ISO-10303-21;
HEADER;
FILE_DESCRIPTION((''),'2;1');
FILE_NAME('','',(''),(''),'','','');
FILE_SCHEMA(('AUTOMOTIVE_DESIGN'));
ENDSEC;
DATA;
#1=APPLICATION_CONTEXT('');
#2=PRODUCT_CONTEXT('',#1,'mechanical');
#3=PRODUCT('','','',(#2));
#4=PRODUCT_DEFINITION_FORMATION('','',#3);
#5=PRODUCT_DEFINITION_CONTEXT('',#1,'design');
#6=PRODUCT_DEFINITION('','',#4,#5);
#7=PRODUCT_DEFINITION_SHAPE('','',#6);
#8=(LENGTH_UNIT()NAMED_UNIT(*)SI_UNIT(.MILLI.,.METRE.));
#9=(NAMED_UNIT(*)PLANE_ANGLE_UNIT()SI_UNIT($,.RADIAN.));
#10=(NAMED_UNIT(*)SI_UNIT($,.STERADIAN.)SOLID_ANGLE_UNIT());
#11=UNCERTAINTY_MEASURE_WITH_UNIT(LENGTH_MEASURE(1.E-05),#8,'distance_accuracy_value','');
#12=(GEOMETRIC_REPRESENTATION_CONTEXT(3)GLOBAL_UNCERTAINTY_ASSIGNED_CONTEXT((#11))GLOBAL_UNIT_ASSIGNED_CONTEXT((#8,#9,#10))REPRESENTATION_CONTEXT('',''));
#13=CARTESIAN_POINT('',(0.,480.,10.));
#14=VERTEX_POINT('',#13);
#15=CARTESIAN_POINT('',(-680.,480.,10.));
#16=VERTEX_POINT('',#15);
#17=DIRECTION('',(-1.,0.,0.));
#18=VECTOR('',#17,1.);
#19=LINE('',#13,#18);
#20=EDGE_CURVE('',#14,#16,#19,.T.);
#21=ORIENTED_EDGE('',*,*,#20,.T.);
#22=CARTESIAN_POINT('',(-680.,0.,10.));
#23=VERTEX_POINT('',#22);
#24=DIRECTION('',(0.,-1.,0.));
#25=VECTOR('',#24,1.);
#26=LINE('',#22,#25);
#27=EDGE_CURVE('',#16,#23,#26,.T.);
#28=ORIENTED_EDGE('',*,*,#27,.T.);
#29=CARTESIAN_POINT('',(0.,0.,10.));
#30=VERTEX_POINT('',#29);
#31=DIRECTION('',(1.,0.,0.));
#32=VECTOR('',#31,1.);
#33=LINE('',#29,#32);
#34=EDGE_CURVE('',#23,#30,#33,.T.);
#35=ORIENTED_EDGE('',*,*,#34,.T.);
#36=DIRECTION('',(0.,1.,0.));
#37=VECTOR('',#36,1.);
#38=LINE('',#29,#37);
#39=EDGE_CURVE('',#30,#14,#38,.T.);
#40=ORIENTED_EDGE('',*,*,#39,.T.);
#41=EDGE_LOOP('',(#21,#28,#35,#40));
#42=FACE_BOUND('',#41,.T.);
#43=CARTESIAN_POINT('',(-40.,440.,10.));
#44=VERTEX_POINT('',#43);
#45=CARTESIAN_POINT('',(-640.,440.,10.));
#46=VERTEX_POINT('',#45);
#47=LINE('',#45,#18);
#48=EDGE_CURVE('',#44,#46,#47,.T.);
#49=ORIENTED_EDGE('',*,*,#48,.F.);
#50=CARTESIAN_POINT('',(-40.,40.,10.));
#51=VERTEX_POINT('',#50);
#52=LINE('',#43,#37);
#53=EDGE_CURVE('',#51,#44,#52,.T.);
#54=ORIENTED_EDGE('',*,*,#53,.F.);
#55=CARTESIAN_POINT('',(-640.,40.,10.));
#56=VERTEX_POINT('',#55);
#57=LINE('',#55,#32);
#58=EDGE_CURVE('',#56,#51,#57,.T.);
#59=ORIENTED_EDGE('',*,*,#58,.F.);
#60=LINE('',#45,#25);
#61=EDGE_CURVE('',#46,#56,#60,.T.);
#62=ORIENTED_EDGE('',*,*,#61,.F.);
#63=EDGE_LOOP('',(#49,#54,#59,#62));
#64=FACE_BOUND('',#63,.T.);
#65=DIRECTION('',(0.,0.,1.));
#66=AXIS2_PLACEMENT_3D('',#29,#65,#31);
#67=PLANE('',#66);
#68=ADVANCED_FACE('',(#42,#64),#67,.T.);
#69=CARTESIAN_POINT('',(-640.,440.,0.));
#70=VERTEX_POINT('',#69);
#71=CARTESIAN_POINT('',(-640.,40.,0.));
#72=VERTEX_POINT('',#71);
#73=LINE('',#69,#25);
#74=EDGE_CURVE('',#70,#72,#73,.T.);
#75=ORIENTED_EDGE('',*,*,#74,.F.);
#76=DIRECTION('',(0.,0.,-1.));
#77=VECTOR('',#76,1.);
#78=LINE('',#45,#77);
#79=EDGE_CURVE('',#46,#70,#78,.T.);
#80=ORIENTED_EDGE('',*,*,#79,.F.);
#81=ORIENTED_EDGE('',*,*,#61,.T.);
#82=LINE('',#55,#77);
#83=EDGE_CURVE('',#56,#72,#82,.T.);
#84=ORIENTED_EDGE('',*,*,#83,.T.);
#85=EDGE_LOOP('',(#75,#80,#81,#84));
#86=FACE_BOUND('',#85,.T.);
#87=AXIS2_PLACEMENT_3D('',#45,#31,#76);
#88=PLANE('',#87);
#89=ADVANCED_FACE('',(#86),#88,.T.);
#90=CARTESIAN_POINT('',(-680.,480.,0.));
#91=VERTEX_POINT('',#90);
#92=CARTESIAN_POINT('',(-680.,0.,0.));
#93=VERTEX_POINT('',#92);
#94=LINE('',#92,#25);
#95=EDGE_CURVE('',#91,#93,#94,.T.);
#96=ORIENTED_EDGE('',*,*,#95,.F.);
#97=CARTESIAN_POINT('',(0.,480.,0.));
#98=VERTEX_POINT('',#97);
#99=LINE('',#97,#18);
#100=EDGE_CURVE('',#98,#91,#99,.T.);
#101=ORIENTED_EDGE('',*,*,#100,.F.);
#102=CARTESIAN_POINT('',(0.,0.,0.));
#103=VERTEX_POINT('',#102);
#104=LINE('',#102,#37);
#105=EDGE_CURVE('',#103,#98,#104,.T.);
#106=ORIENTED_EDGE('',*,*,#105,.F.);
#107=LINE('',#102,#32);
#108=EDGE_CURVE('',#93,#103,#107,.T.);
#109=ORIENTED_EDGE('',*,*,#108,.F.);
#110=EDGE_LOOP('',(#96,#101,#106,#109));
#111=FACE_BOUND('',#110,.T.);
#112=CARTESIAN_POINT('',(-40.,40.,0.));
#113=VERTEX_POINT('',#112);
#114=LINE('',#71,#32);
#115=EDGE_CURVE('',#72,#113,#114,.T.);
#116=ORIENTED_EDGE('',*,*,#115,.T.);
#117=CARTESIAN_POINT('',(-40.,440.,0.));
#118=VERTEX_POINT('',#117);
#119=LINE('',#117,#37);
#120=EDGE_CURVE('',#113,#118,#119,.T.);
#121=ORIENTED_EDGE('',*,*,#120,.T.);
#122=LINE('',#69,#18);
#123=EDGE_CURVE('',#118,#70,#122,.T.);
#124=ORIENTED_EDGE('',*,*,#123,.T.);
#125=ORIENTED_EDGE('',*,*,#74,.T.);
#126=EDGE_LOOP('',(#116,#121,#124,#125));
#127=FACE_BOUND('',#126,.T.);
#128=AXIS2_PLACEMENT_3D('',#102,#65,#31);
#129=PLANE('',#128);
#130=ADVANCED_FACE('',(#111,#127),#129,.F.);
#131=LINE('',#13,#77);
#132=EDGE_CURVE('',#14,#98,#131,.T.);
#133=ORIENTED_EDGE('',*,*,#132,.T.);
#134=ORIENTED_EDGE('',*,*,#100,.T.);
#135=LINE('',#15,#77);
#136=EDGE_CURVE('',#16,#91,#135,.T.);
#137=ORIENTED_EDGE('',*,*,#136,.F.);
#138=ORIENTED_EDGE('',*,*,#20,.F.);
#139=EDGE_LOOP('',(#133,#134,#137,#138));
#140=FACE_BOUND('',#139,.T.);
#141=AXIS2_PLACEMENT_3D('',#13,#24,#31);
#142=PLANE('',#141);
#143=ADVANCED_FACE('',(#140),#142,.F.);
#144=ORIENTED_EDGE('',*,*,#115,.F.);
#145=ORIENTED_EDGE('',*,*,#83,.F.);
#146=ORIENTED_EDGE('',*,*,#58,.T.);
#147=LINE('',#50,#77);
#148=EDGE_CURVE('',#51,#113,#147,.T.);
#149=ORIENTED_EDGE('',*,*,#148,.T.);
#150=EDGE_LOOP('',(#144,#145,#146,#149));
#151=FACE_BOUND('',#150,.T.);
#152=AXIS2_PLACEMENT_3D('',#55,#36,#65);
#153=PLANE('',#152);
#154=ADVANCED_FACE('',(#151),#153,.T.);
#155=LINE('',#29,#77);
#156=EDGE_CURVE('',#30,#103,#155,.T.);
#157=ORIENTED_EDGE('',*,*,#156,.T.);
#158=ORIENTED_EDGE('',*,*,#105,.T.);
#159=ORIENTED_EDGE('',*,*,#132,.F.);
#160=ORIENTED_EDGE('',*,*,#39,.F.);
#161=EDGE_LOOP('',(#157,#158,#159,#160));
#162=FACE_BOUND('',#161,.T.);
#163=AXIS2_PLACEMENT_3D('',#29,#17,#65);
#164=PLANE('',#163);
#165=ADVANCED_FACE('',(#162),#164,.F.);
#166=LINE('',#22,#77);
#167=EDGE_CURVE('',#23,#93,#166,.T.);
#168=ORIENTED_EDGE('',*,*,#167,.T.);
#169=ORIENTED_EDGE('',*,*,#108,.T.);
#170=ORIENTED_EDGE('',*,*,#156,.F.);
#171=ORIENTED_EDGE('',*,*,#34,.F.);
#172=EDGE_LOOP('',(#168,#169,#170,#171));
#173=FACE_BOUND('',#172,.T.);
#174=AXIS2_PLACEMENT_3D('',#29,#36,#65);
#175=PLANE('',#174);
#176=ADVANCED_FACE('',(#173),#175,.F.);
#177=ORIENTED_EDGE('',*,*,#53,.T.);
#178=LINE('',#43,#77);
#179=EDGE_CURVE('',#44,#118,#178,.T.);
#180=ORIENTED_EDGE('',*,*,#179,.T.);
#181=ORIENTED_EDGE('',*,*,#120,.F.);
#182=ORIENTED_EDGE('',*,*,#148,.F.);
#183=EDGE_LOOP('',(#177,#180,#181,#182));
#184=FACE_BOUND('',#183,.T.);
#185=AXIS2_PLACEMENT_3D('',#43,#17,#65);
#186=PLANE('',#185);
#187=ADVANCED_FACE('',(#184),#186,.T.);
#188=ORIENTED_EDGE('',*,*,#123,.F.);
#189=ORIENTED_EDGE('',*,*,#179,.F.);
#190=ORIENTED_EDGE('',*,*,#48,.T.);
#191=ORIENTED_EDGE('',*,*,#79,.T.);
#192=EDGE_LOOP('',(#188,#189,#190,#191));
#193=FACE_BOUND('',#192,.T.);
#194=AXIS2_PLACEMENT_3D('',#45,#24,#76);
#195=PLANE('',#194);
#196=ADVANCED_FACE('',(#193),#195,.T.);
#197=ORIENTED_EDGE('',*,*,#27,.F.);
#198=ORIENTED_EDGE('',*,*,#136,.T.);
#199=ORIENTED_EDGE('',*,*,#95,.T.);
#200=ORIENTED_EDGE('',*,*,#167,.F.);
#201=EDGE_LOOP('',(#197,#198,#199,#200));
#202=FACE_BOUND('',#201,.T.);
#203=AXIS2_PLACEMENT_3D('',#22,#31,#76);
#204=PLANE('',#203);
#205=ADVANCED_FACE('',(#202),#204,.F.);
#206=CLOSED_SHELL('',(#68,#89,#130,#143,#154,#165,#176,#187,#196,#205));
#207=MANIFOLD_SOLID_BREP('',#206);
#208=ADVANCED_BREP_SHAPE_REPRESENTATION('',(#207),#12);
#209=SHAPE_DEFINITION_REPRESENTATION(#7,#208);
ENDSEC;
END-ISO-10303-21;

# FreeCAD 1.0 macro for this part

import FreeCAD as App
import Part
import Sketcher

V = App.Vector


def add_polygon(sketch, points):
    """Adds a closed chain of lines whose ends are joined by coincident constraints."""
    first, n = sketch.GeometryCount, len(points)
    for a, b in zip(points, points[1:] + points[:1]):
        sketch.addGeometry(Part.LineSegment(App.Vector(*a, 0), App.Vector(*b, 0)), False)
    for i in range(n):
        sketch.addConstraint(Sketcher.Constraint("Coincident", first + i, 2, first + (i + 1) % n, 1))

doc = App.newDocument("Part")
body = doc.addObject("PartDesign::Body", "Body")

# Sketch on XY plane
sketch1 = body.newObject("Sketcher::SketchObject", "Sketch")
sketch1.AttachmentSupport = (doc.getObject("XY_Plane"), [""])
sketch1.MapMode = "FlatFace"
add_polygon(sketch1, [(-680, 480), (-680, 0), (0, 0), (0, 480)])  # lines 0-3
add_polygon(sketch1, [(-40, 40), (-640, 40), (-640, 440), (-40, 440)])  # lines 4-7
sketch1.addConstraint([
    Sketcher.Constraint("Vertical", 0),
    Sketcher.Constraint("Horizontal", 1),
    Sketcher.Constraint("Vertical", 2),
    Sketcher.Constraint("Horizontal", 3),
    Sketcher.Constraint("Horizontal", 4),
    Sketcher.Constraint("Vertical", 5),
    Sketcher.Constraint("Horizontal", 6),
    Sketcher.Constraint("Vertical", 7),
    Sketcher.Constraint("Coincident", 1, 2, -1, 1),
    Sketcher.Constraint("DistanceX", 1, 1, 1, 2, 680.0),
    Sketcher.Constraint("DistanceX", 4, 2, 4, 1, 600.0),
    Sketcher.Constraint("DistanceY", 0, 2, 0, 1, 480.0),
    Sketcher.Constraint("DistanceY", 5, 1, 5, 2, 400.0),
    Sketcher.Constraint("DistanceX", 4, 2, -1, 1, 640.0),
    Sketcher.Constraint("DistanceY", -1, 1, 4, 2, 40.0),
])
pad1 = body.newObject("PartDesign::Pad", "Pad")
pad1.Profile = sketch1
pad1.Length = 10

doc.recompute()
